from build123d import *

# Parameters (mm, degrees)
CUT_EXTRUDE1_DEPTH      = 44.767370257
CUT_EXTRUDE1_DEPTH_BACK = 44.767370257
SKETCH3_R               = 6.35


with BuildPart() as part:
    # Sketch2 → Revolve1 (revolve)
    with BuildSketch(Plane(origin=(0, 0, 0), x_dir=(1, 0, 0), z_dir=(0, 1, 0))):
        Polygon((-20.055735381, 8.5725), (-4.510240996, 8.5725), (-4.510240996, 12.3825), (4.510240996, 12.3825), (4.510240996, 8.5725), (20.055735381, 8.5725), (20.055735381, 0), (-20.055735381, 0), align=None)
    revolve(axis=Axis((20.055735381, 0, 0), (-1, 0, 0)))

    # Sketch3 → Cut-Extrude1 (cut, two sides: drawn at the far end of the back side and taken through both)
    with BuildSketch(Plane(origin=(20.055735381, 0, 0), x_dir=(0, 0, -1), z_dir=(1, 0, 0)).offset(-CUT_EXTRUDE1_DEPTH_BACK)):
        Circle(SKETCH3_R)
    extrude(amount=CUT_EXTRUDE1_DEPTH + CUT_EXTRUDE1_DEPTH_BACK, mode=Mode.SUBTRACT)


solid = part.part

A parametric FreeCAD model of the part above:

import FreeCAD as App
import Part
import Sketcher

V = App.Vector
Q = App.Units.Quantity


def add_polygon(sketch, points):
    """Adds a closed chain of lines whose ends are joined by coincident constraints."""
    first, n = sketch.GeometryCount, len(points)
    for a, b in zip(points, points[1:] + points[:1]):
        sketch.addGeometry(Part.LineSegment(App.Vector(*a, 0), App.Vector(*b, 0)), False)
    for i in range(n):
        sketch.addConstraint(Sketcher.Constraint("Coincident", first + i, 2, first + (i + 1) % n, 1))

doc = App.newDocument("Part")
body = doc.addObject("PartDesign::Body", "Body")

sketch1 = doc.addObject("Sketcher::SketchObject", "Sketch")
body.addObject(sketch1)
sketch1.AttachmentSupport = (doc.XZ_Plane, [""])
sketch1.MapMode = "FlatFace"
add_polygon(sketch1, [(-4.5, -8.6), (-20.1, -8.6), (-20.1, 0), (20.1, 0), (20.1, -8.6), (4.5, -8.6), (4.5, -12.4), (-4.5, -12.4)])
sketch1.addConstraint([
    Sketcher.Constraint("Horizontal", 0),
    Sketcher.Constraint("Vertical", 1),
    Sketcher.Constraint("Horizontal", 2),
    Sketcher.Constraint("Vertical", 3),
    Sketcher.Constraint("Horizontal", 4),
    Sketcher.Constraint("Vertical", 5),
    Sketcher.Constraint("Horizontal", 6),
    Sketcher.Constraint("Vertical", 7),
    Sketcher.Constraint("Symmetric", 1, 2, 2, 2, -1, 1),
    Sketcher.Constraint("Symmetric", 4, 2, 7, 2, -2),
    Sketcher.Constraint("DistanceY", 5, 2, 5, 1, Q("0.15 in")),
    Sketcher.Constraint("DistanceY", 1, 1, 1, 2, Q("0.3375 in")),
    Sketcher.Constraint("DistanceX", 2, 1, 2, 2, 40.111471),
    Sketcher.Constraint("DistanceX", 6, 2, 6, 1, 9.020482),
])
revolution = doc.addObject("PartDesign::Revolution", "Revolution")
body.addObject(revolution)
revolution.Profile = sketch1
revolution.ReferenceAxis = (sketch1, ["H_Axis"])
revolution.Angle = 360

sketch2 = doc.addObject("Sketcher::SketchObject", "Sketch001")
body.addObject(sketch2)
sketch2.AttachmentSupport = (doc.YZ_Plane, [""])
sketch2.MapMode = "FlatFace"
sketch2.AttachmentOffset = App.Placement(V(0, 0, 20.055735), App.Rotation())
sketch2.addGeometry(Part.Circle(V(0, 0, 0), V(0, 0, 1), 6), False)
sketch2.addConstraint([
    Sketcher.Constraint("Coincident", 0, 3, -1, 1),
    Sketcher.Constraint("Diameter", 0, Q("0.5 in")),
])
pocket1 = doc.addObject("PartDesign::Pocket", "Pocket")
body.addObject(pocket1)
pocket1.Profile = sketch2
pocket1.Type = "ThroughAll"
pocket1.Midplane = True

doc.recompute()
